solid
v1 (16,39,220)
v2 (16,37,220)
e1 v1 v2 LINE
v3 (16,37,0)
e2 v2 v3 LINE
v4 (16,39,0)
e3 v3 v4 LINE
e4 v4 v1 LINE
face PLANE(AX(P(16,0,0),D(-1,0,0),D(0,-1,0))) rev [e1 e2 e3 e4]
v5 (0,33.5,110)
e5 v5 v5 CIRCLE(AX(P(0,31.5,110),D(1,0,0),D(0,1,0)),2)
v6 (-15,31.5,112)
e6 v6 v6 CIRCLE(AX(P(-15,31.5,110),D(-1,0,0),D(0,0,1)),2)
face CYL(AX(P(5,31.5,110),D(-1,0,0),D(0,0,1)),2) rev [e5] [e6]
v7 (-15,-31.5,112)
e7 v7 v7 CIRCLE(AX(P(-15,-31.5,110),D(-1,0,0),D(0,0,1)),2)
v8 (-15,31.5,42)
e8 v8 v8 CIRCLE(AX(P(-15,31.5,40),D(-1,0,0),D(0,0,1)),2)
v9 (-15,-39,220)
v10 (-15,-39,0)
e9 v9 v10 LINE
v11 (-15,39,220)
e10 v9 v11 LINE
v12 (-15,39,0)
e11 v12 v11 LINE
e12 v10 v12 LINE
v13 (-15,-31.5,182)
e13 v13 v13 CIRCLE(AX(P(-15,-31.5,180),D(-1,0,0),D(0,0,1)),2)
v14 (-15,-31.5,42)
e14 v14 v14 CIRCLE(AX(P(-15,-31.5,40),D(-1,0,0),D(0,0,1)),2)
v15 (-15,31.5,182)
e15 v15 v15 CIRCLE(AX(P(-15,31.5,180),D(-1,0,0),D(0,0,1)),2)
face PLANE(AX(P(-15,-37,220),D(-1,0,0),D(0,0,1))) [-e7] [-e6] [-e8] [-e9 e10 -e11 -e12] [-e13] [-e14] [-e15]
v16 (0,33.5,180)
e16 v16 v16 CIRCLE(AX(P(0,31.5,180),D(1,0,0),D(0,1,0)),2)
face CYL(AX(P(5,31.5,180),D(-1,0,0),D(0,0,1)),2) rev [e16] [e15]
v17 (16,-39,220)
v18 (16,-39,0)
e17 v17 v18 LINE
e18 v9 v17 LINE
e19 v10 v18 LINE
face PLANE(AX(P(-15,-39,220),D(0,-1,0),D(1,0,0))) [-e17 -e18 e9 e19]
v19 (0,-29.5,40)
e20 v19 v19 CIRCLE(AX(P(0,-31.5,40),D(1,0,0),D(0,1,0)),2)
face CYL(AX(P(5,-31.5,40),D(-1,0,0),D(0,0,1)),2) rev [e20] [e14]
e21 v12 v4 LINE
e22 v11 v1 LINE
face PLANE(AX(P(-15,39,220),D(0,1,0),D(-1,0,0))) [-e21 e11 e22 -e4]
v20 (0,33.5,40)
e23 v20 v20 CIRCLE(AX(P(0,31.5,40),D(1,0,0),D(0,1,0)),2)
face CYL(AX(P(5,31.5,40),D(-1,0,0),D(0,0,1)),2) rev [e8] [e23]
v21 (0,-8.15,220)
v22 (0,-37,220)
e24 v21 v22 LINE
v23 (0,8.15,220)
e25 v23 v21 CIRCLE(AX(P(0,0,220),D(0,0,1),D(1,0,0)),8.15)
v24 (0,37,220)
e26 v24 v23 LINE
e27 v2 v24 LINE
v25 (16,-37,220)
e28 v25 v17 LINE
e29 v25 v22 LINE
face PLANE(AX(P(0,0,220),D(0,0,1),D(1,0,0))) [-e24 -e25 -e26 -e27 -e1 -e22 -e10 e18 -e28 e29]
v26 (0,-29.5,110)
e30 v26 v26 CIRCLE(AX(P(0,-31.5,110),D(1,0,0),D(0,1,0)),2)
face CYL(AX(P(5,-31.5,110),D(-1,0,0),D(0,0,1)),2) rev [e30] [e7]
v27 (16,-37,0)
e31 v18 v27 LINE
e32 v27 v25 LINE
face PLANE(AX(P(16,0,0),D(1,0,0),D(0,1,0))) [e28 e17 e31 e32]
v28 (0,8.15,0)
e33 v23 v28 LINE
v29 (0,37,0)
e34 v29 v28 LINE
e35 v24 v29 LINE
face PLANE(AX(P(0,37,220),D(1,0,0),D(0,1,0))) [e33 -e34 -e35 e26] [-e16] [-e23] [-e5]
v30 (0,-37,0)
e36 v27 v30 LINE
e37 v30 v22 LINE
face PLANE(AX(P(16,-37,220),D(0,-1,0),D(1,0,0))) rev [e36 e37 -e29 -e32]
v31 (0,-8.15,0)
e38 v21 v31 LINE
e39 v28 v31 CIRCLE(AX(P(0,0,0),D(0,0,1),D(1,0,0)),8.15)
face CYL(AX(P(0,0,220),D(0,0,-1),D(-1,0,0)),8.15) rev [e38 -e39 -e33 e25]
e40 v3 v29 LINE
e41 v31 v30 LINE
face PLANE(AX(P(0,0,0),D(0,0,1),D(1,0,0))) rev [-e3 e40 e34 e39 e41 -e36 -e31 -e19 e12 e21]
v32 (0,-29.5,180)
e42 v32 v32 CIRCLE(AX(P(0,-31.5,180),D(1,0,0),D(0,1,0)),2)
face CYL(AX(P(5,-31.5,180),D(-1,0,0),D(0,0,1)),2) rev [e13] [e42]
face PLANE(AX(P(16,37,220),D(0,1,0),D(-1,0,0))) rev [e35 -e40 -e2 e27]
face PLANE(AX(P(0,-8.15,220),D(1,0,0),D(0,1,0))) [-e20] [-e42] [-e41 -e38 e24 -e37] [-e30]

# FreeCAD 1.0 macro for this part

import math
import FreeCAD as App
import Part
import Sketcher

doc = App.newDocument("Part")
body = doc.addObject("PartDesign::Body", "Body")

sketch1 = doc.addObject("Sketcher::SketchObject", "Sketch")
body.addObject(sketch1)
sketch1.AttachmentSupport = (doc.XY_Plane, [""])
sketch1.MapMode = "FlatFace"
sketch1.addGeometry(Part.LineSegment(App.Vector(0, 8, 0), App.Vector(0, 37, 0)), False)
sketch1.addGeometry(Part.LineSegment(App.Vector(0, 37, 0), App.Vector(-15, 37, 0)), False)
sketch1.addGeometry(Part.LineSegment(App.Vector(-15, 37, 0), App.Vector(-15, -37, 0)), False)
sketch1.addGeometry(Part.LineSegment(App.Vector(-15, -37, 0), App.Vector(0, -37, 0)), False)
sketch1.addGeometry(Part.LineSegment(App.Vector(0, -37, 0), App.Vector(0, -8, 0)), False)
sketch1.addGeometry(Part.ArcOfCircle(Part.Circle(App.Vector(0, 0, 0), App.Vector(0, 0, 1), 8), math.radians(90), math.radians(270)), False)
sketch1.addConstraint(Sketcher.Constraint("Coincident", 0, 2, 1, 1))
sketch1.addConstraint(Sketcher.Constraint("Coincident", 1, 2, 2, 1))
sketch1.addConstraint(Sketcher.Constraint("Coincident", 2, 2, 3, 1))
sketch1.addConstraint(Sketcher.Constraint("Coincident", 3, 2, 4, 1))
sketch1.addConstraint(Sketcher.Constraint("Coincident", 4, 2, 5, 2))
sketch1.addConstraint(Sketcher.Constraint("Coincident", 5, 1, 0, 1))
sketch1.addConstraint(Sketcher.Constraint("Vertical", 0))
sketch1.addConstraint(Sketcher.Constraint("Horizontal", 1))
sketch1.addConstraint(Sketcher.Constraint("Vertical", 2))
sketch1.addConstraint(Sketcher.Constraint("Horizontal", 3))
sketch1.addConstraint(Sketcher.Constraint("Vertical", 4))
sketch1.addConstraint(Sketcher.Constraint("Coincident", 5, 3, -1, 1))
sketch1.addConstraint(Sketcher.Constraint("Symmetric", 0, 2, 3, 2, -1, 1))
sketch1.addConstraint(Sketcher.Constraint("PointOnObject", 0, 2, -2))
sketch1.addConstraint(Sketcher.Constraint("DistanceX", 1, 2, 1, 1, 15.0))
sketch1.addConstraint(Sketcher.Constraint("DistanceY", 2, 2, 2, 1, 74.0))
sketch1.addConstraint(Sketcher.Constraint("Radius", 5, 8.15))
pad1 = doc.addObject("PartDesign::Pad", "Pad")
body.addObject(pad1)
pad1.Profile = sketch1
pad1.Length = 220

sketch2 = doc.addObject("Sketcher::SketchObject", "Sketch001")
body.addObject(sketch2)
sketch2.AttachmentSupport = (doc.YZ_Plane, [""])
sketch2.MapMode = "FlatFace"
sketch2.AttachmentOffset = App.Placement(App.Vector(0, 0, -15), App.Rotation())
sketch2.addGeometry(Part.Circle(App.Vector(-31.5, 110, 0), App.Vector(0, 0, 1), 2), False)
sketch2.addGeometry(Part.Circle(App.Vector(31.5, 110, 0), App.Vector(0, 0, 1), 2), False)
sketch2.addGeometry(Part.Circle(App.Vector(31.5, 40, 0), App.Vector(0, 0, 1), 2), False)
sketch2.addGeometry(Part.Circle(App.Vector(-31.5, 40, 0), App.Vector(0, 0, 1), 2), False)
sketch2.addGeometry(Part.Circle(App.Vector(31.5, 180, 0), App.Vector(0, 0, 1), 2), False)
sketch2.addGeometry(Part.Circle(App.Vector(-31.5, 180, 0), App.Vector(0, 0, 1), 2), False)
sketch2.addConstraint(Sketcher.Constraint("Equal", 0, 1))
sketch2.addConstraint(Sketcher.Constraint("Equal", 1, 2))
sketch2.addConstraint(Sketcher.Constraint("Equal", 2, 3))
sketch2.addConstraint(Sketcher.Constraint("Equal", 3, 4))
sketch2.addConstraint(Sketcher.Constraint("Equal", 4, 5))
sketch2.addConstraint(Sketcher.Constraint("Symmetric", 0, 3, 1, 3, -2))
sketch2.addConstraint(Sketcher.Constraint("Symmetric", 2, 3, 3, 3, -2))
sketch2.addConstraint(Sketcher.Constraint("Symmetric", 4, 3, 5, 3, -2))
sketch2.addConstraint(Sketcher.Constraint("Vertical", 1, 3, 2, 3))
sketch2.addConstraint(Sketcher.Constraint("Vertical", 2, 3, 4, 3))
sketch2.addConstraint(Sketcher.Constraint("Diameter", 0, 4.0))
sketch2.addConstraint(Sketcher.Constraint("DistanceY", -1, 1, 0, 3, 110.0))
sketch2.addConstraint(Sketcher.Constraint("DistanceY", -1, 1, 2, 3, 40.0))
sketch2.addConstraint(Sketcher.Constraint("DistanceY", -1, 1, 4, 3, 180.0))
sketch2.addConstraint(Sketcher.Constraint("DistanceX", 0, 3, 1, 3, 63.0))
pocket1 = doc.addObject("PartDesign::Pocket", "Pocket")
body.addObject(pocket1)
pocket1.Profile = sketch2
pocket1.Length = 20
pocket1.Reversed = True
body2 = doc.addObject("PartDesign::Body", "Body001")

sketch3 = doc.addObject("Sketcher::SketchObject", "Sketch002")
body2.addObject(sketch3)
sketch3.AttachmentSupport = (doc.getObject("YZ_Plane001"), [""])
sketch3.MapMode = "FlatFace"
sketch3.addGeometry(Part.LineSegment(App.Vector(-37, 220, 0), App.Vector(-39, 220, 0)), False)
sketch3.addGeometry(Part.LineSegment(App.Vector(-39, 220, 0), App.Vector(-39, 0, 0)), False)
sketch3.addGeometry(Part.LineSegment(App.Vector(-39, 0, 0), App.Vector(-37, 0, 0)), False)
sketch3.addGeometry(Part.LineSegment(App.Vector(-37, 0, 0), App.Vector(-37, 220, 0)), False)
sketch3.addConstraint(Sketcher.Constraint("Coincident", 0, 2, 1, 1))
sketch3.addConstraint(Sketcher.Constraint("Coincident", 1, 2, 2, 1))
sketch3.addConstraint(Sketcher.Constraint("Coincident", 2, 2, 3, 1))
sketch3.addConstraint(Sketcher.Constraint("Coincident", 3, 2, 0, 1))
sketch3.addConstraint(Sketcher.Constraint("Horizontal", 0))
sketch3.addConstraint(Sketcher.Constraint("Vertical", 1))
sketch3.addConstraint(Sketcher.Constraint("Horizontal", 2))
sketch3.addConstraint(Sketcher.Constraint("Vertical", 3))
sketch3.addConstraint(Sketcher.Constraint("PointOnObject", 1, 2, -1))
sketch3.addConstraint(Sketcher.Constraint("DistanceX", 0, 2, 0, 1, 2.0))
sketch3.addConstraint(Sketcher.Constraint("DistanceY", 1, 2, 1, 1, 220.0))
sketch3.addConstraint(Sketcher.Constraint("DistanceX", 0, 2, -1, 1, 39.0))
pad2 = doc.addObject("PartDesign::Pad", "Pad001")
body2.addObject(pad2)
pad2.Profile = sketch3
pad2.Length = 16
body3 = doc.addObject("PartDesign::Body", "Body002")

sketch4 = doc.addObject("Sketcher::SketchObject", "Sketch003")
body3.addObject(sketch4)
sketch4.AttachmentSupport = (doc.getObject("YZ_Plane002"), [""])
sketch4.MapMode = "FlatFace"
sketch4.addGeometry(Part.LineSegment(App.Vector(39, 220, 0), App.Vector(37, 220, 0)), False)
sketch4.addGeometry(Part.LineSegment(App.Vector(37, 220, 0), App.Vector(37, 0, 0)), False)
sketch4.addGeometry(Part.LineSegment(App.Vector(37, 0, 0), App.Vector(39, 0, 0)), False)
sketch4.addGeometry(Part.LineSegment(App.Vector(39, 0, 0), App.Vector(39, 220, 0)), False)
sketch4.addConstraint(Sketcher.Constraint("Coincident", 0, 2, 1, 1))
sketch4.addConstraint(Sketcher.Constraint("Coincident", 1, 2, 2, 1))
sketch4.addConstraint(Sketcher.Constraint("Coincident", 2, 2, 3, 1))
sketch4.addConstraint(Sketcher.Constraint("Coincident", 3, 2, 0, 1))
sketch4.addConstraint(Sketcher.Constraint("Horizontal", 0))
sketch4.addConstraint(Sketcher.Constraint("Vertical", 1))
sketch4.addConstraint(Sketcher.Constraint("Horizontal", 2))
sketch4.addConstraint(Sketcher.Constraint("Vertical", 3))
sketch4.addConstraint(Sketcher.Constraint("PointOnObject", 1, 2, -1))
sketch4.addConstraint(Sketcher.Constraint("DistanceX", 0, 2, 0, 1, 2.0))
sketch4.addConstraint(Sketcher.Constraint("DistanceY", 1, 2, 1, 1, 220.0))
sketch4.addConstraint(Sketcher.Constraint("DistanceX", -1, 1, 0, 2, 37.0))
pad3 = doc.addObject("PartDesign::Pad", "Pad002")
body3.addObject(pad3)
pad3.Profile = sketch4
pad3.Length = 16
body.AllowCompound = True
doc.recompute()

boolean = doc.addObject("PartDesign::Boolean", "Boolean")
body.addObject(boolean)
boolean.Type = "Fuse"
boolean.addObjects([body2])
doc.recompute()

boolean2 = doc.addObject("PartDesign::Boolean", "Boolean001")
body.addObject(boolean2)
boolean2.Type = "Fuse"
boolean2.addObjects([body3])

sketch5 = doc.addObject("Sketcher::SketchObject", "Sketch004")
body.addObject(sketch5)
sketch5.AttachmentSupport = (doc.YZ_Plane, [""])
sketch5.MapMode = "FlatFace"
sketch5.addGeometry(Part.LineSegment(App.Vector(-37, 220, 0), App.Vector(-39, 220, 0)), False)
sketch5.addGeometry(Part.LineSegment(App.Vector(-39, 220, 0), App.Vector(-39, 0, 0)), False)
sketch5.addGeometry(Part.LineSegment(App.Vector(-39, 0, 0), App.Vector(-37, 0, 0)), False)
sketch5.addGeometry(Part.LineSegment(App.Vector(-37, 0, 0), App.Vector(-37, 220, 0)), False)
sketch5.addGeometry(Part.LineSegment(App.Vector(39, 220, 0), App.Vector(37, 220, 0)), False)
sketch5.addGeometry(Part.LineSegment(App.Vector(37, 220, 0), App.Vector(37, 0, 0)), False)
sketch5.addGeometry(Part.LineSegment(App.Vector(37, 0, 0), App.Vector(39, 0, 0)), False)
sketch5.addGeometry(Part.LineSegment(App.Vector(39, 0, 0), App.Vector(39, 220, 0)), False)
sketch5.addConstraint(Sketcher.Constraint("Coincident", 0, 2, 1, 1))
sketch5.addConstraint(Sketcher.Constraint("Coincident", 1, 2, 2, 1))
sketch5.addConstraint(Sketcher.Constraint("Coincident", 2, 2, 3, 1))
sketch5.addConstraint(Sketcher.Constraint("Coincident", 3, 2, 0, 1))
sketch5.addConstraint(Sketcher.Constraint("Coincident", 4, 2, 5, 1))
sketch5.addConstraint(Sketcher.Constraint("Coincident", 5, 2, 6, 1))
sketch5.addConstraint(Sketcher.Constraint("Coincident", 6, 2, 7, 1))
sketch5.addConstraint(Sketcher.Constraint("Coincident", 7, 2, 4, 1))
sketch5.addConstraint(Sketcher.Constraint("Horizontal", 0))
sketch5.addConstraint(Sketcher.Constraint("Vertical", 1))
sketch5.addConstraint(Sketcher.Constraint("Horizontal", 2))
sketch5.addConstraint(Sketcher.Constraint("Vertical", 3))
sketch5.addConstraint(Sketcher.Constraint("Horizontal", 4))
sketch5.addConstraint(Sketcher.Constraint("Vertical", 5))
sketch5.addConstraint(Sketcher.Constraint("Horizontal", 6))
sketch5.addConstraint(Sketcher.Constraint("Vertical", 7))
sketch5.addConstraint(Sketcher.Constraint("Symmetric", 2, 2, 5, 2, -1, 1))
sketch5.addConstraint(Sketcher.Constraint("Symmetric", 1, 2, 6, 2, -2))
sketch5.addConstraint(Sketcher.Constraint("Horizontal", 3, 2, 4, 2))
sketch5.addConstraint(Sketcher.Constraint("DistanceX", 0, 2, 0, 1, 2.0))
sketch5.addConstraint(Sketcher.Constraint("DistanceY", 1, 2, 1, 1, 220.0))
sketch5.addConstraint(Sketcher.Constraint("DistanceX", 0, 2, -1, 1, 39.0))
pad4 = doc.addObject("PartDesign::Pad", "Pad003")
body.addObject(pad4)
pad4.Profile = sketch5
pad4.Length = 15
pad4.Reversed = True

doc.recompute()
